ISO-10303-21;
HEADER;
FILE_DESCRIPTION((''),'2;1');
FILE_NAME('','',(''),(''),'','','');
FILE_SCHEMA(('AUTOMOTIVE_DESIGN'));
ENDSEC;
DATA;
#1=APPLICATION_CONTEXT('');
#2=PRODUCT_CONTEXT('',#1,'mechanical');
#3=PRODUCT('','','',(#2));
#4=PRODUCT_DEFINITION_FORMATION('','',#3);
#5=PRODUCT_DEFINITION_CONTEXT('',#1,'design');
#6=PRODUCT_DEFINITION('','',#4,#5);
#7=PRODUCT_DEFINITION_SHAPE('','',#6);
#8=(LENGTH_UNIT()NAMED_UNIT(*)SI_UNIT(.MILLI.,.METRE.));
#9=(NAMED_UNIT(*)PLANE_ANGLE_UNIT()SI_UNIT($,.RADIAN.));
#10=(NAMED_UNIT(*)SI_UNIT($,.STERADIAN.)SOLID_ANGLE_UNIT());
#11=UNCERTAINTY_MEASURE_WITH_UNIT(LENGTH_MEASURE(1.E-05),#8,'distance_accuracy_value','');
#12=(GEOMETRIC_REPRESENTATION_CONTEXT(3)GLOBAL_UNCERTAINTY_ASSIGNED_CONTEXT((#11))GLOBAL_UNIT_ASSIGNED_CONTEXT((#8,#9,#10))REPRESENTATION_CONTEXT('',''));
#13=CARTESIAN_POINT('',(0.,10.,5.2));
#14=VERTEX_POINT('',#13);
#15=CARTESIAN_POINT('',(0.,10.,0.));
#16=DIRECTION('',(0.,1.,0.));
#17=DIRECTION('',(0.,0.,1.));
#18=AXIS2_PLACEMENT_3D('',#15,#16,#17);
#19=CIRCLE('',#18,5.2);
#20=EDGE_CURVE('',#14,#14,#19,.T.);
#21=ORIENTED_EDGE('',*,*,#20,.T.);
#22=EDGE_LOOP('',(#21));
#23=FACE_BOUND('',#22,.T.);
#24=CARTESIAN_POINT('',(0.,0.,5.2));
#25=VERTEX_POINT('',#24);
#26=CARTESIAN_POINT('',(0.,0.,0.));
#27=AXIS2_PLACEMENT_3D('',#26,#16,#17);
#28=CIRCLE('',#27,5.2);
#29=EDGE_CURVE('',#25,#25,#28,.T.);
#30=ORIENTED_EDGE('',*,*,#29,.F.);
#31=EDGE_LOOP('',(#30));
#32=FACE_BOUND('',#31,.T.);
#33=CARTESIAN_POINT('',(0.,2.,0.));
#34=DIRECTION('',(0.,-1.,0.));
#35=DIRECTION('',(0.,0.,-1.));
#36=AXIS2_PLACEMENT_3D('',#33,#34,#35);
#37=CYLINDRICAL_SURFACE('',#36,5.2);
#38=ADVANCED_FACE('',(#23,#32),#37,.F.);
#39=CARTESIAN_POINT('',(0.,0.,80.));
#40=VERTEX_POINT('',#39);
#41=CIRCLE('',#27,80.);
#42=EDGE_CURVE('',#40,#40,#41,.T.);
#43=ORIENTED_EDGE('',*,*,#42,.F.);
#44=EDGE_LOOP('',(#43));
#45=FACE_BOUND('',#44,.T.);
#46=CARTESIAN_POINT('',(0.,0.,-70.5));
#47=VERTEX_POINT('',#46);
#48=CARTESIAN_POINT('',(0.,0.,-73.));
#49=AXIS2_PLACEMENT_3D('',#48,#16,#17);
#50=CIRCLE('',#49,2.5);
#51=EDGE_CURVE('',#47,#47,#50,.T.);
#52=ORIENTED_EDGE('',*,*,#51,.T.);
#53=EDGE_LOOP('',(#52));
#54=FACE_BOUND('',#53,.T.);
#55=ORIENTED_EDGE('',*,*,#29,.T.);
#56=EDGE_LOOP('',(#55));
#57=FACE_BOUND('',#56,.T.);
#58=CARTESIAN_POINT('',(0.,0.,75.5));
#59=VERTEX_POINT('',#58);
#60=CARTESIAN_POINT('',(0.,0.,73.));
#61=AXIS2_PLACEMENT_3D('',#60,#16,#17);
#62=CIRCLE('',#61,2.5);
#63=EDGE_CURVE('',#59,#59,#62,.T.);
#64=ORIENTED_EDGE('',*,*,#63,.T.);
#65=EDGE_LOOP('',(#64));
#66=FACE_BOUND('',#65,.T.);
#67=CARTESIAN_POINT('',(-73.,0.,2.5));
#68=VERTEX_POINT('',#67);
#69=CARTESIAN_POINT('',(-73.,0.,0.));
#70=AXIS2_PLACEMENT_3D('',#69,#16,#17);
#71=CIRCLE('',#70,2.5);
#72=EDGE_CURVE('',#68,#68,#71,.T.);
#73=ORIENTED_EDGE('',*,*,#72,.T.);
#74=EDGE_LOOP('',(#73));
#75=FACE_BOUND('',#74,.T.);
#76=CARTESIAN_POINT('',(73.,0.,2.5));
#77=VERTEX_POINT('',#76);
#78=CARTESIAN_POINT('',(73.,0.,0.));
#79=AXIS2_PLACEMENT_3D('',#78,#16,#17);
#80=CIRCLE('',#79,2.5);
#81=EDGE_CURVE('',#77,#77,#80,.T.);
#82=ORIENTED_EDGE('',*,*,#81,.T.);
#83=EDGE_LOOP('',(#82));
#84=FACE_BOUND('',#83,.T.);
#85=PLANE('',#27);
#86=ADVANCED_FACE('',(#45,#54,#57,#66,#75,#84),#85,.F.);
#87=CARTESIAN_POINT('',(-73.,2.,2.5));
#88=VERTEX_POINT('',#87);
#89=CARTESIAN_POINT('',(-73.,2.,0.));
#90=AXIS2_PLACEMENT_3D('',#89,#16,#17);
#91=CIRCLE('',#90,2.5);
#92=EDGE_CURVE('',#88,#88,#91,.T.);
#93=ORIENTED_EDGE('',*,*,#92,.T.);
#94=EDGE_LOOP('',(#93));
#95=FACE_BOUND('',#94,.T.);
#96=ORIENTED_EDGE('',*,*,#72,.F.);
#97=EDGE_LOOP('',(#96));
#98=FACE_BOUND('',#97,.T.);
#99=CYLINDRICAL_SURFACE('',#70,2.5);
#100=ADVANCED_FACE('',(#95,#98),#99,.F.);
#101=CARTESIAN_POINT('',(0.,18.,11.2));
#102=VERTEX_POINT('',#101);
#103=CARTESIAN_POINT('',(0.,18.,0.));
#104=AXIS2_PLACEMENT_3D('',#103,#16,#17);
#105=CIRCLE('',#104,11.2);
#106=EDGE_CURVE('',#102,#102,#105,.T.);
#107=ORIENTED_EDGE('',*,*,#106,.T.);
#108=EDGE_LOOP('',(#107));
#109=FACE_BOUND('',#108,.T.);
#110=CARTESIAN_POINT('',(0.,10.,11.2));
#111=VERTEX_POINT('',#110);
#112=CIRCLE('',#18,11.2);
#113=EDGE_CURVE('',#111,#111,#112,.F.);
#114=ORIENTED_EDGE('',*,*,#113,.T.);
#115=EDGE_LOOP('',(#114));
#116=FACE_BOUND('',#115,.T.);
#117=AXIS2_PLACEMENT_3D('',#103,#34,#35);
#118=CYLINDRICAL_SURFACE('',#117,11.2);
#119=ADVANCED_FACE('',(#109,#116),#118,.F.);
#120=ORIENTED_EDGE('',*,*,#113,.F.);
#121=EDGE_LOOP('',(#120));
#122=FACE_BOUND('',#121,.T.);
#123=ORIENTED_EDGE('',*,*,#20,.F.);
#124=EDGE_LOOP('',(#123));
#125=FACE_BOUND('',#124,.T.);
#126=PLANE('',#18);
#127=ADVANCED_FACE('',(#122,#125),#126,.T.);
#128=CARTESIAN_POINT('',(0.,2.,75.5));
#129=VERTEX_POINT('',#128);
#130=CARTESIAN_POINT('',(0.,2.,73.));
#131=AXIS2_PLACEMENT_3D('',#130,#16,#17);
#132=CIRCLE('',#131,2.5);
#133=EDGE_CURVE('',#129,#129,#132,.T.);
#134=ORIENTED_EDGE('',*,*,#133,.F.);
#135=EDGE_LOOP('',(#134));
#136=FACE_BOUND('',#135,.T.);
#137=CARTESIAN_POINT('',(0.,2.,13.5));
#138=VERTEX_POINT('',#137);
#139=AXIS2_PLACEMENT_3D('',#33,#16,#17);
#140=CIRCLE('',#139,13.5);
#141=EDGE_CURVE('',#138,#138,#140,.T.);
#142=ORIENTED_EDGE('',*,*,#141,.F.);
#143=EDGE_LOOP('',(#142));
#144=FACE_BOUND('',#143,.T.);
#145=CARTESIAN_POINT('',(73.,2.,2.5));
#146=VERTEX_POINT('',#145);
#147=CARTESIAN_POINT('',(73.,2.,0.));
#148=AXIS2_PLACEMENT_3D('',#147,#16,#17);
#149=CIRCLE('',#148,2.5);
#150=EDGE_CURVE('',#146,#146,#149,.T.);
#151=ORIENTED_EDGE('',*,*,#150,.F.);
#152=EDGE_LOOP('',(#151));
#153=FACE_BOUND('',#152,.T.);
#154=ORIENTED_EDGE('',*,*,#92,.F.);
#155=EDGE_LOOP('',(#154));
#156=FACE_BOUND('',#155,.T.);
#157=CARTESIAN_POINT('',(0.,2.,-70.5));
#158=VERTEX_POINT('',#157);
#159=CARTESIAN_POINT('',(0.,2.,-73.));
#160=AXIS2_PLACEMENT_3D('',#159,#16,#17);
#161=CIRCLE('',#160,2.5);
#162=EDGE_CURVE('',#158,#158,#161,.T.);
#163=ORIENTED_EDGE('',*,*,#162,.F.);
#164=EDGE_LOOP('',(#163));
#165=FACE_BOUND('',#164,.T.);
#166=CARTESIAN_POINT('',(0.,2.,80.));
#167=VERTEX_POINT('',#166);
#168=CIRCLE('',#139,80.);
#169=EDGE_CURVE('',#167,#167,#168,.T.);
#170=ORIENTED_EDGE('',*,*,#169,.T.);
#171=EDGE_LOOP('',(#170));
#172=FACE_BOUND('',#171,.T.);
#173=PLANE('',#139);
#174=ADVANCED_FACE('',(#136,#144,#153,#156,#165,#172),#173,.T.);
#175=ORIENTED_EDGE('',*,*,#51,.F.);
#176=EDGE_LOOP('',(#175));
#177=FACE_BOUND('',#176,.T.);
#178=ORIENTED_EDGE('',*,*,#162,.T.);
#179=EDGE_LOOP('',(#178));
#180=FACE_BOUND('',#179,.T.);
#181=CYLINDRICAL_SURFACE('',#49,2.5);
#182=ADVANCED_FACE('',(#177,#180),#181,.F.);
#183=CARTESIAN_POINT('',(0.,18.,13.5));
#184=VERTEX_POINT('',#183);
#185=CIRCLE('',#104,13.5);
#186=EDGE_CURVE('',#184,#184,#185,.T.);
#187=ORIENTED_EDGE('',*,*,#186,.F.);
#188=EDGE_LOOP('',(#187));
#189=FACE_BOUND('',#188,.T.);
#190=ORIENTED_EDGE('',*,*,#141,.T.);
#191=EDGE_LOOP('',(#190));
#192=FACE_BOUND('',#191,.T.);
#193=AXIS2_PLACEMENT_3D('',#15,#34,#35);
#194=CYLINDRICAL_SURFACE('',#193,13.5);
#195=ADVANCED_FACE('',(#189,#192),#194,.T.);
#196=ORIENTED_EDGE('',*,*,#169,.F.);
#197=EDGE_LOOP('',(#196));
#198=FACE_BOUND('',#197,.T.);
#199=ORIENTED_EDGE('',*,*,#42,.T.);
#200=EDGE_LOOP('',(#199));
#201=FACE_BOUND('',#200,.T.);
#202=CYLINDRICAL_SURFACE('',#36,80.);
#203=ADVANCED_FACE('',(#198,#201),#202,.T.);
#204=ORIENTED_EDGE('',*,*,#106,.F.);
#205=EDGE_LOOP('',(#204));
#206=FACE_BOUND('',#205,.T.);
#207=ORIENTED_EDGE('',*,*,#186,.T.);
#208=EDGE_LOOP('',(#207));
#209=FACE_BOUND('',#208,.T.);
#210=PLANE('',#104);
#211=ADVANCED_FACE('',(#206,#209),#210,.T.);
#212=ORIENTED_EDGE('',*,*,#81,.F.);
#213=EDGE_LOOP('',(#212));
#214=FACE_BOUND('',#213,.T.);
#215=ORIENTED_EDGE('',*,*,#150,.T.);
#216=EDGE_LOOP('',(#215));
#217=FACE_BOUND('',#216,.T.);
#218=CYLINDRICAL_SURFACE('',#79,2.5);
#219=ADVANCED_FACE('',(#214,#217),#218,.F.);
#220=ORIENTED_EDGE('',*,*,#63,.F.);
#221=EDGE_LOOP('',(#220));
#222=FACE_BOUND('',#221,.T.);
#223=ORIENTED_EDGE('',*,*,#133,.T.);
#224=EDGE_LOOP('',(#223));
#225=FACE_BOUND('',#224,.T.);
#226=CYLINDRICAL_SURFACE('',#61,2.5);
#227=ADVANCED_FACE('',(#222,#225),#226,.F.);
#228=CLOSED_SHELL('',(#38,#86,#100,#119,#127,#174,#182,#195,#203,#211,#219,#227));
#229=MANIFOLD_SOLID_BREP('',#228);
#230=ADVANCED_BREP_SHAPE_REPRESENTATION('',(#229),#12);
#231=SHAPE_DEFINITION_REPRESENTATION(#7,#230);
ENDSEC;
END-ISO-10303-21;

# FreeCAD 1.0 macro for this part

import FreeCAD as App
import Part
import Sketcher

doc = App.newDocument("Part")
params = doc.addObject("Spreadsheet::Sheet", "Params")
for row, (alias, value) in enumerate([
    ("sketch1_diameter", "160 mm"),
    ("sketch1_diameter2", "10.4 mm"),
    ("pad1_length", "2 mm"),
    ("sketch2_diameter", "5 mm"),
    ("sketch3_diameter", "27 mm"),
    ("sketch3_diameter2", "10.4 mm"),
    ("pad2_length", "8 mm"),
    ("sketch4_diameter", "27 mm"),
    ("sketch4_diameter2", "22.4 mm"),
    ("pad3_length", "8 mm"),
], start=1):
    params.set(f"A{row}", alias)
    params.set(f"B{row}", "=" + value)
    params.setAlias(f"B{row}", alias)

body = doc.addObject("PartDesign::Body", "Body")

# Sketch on XZ plane
sketch1 = body.newObject("Sketcher::SketchObject", "Sketch")
sketch1.AttachmentSupport = (doc.getObject("XZ_Plane"), [""])
sketch1.MapMode = "FlatFace"
sketch1.addGeometry([
    Part.Circle(App.Vector(0, 0, 0), App.Vector(0, 0, 1), 80),
    Part.Circle(App.Vector(0, 0, 0), App.Vector(0, 0, 1), 5.2),
], False)
sketch1.addConstraint([
    Sketcher.Constraint("Coincident", 0, 3, -1, 1),
    Sketcher.Constraint("Coincident", 1, 3, -1, 1),
    Sketcher.Constraint("Diameter", 0, 160.0),
    Sketcher.Constraint("Diameter", 1, 10.4),
])
sketch1.setExpression("Constraints[2]", "Params.sketch1_diameter")
sketch1.setExpression("Constraints[3]", "Params.sketch1_diameter2")
pad1 = body.newObject("PartDesign::Pad", "Pad")
pad1.Profile = sketch1
pad1.setExpression("Length", "Params.pad1_length")
pad1.Reversed = True

# Sketch on XZ plane
sketch2 = body.newObject("Sketcher::SketchObject", "Sketch001")
sketch2.AttachmentSupport = (doc.getObject("XZ_Plane"), [""])
sketch2.MapMode = "FlatFace"
sketch2.AttachmentOffset = App.Placement(App.Vector(0, 0, -2), App.Rotation())
sketch2.addGeometry([
    Part.Circle(App.Vector(0, -73, 0), App.Vector(0, 0, 1), 2.5),
    Part.Circle(App.Vector(73, 0, 0), App.Vector(0, 0, 1), 2.5),
    Part.Circle(App.Vector(0, 73, 0), App.Vector(0, 0, 1), 2.5),
    Part.Circle(App.Vector(-73, 0, 0), App.Vector(0, 0, 1), 2.5),
], False)
sketch2.addConstraint([
    Sketcher.Constraint("Equal", 0, 1),
    Sketcher.Constraint("Equal", 1, 2),
    Sketcher.Constraint("Equal", 2, 3),
    Sketcher.Constraint("Symmetric", 0, 3, 2, 3, -1, 1),
    Sketcher.Constraint("Symmetric", 1, 3, 3, 3, -1, 1),
    Sketcher.Constraint("PointOnObject", 0, 3, -2),
    Sketcher.Constraint("PointOnObject", 1, 3, -1),
    Sketcher.Constraint("Diameter", 0, 5.0),
    Sketcher.Constraint("DistanceY", 0, 3, -1, 1, 73.0),
    Sketcher.Constraint("DistanceX", -1, 1, 1, 3, 73.0),
])
sketch2.setExpression("Constraints[7]", "Params.sketch2_diameter")
pocket1 = body.newObject("PartDesign::Pocket", "Pocket")
pocket1.Profile = sketch2
pocket1.Type = "ThroughAll"
pocket1.Reversed = True

# Sketch on XZ plane
sketch3 = body.newObject("Sketcher::SketchObject", "Sketch002")
sketch3.AttachmentSupport = (doc.getObject("XZ_Plane"), [""])
sketch3.MapMode = "FlatFace"
sketch3.AttachmentOffset = App.Placement(App.Vector(0, 0, -2), App.Rotation())
sketch3.addGeometry([
    Part.Circle(App.Vector(0, 0, 0), App.Vector(0, 0, 1), 13.5),
    Part.Circle(App.Vector(0, 0, 0), App.Vector(0, 0, 1), 5.2),
], False)
sketch3.addConstraint([
    Sketcher.Constraint("Coincident", 0, 3, -1, 1),
    Sketcher.Constraint("Coincident", 1, 3, -1, 1),
    Sketcher.Constraint("Diameter", 0, 27.0),
    Sketcher.Constraint("Diameter", 1, 10.4),
])
sketch3.setExpression("Constraints[2]", "Params.sketch3_diameter")
sketch3.setExpression("Constraints[3]", "Params.sketch3_diameter2")
pad2 = body.newObject("PartDesign::Pad", "Pad001")
pad2.Profile = sketch3
pad2.setExpression("Length", "Params.pad2_length")
pad2.Reversed = True

# Sketch on XZ plane
sketch4 = body.newObject("Sketcher::SketchObject", "Sketch003")
sketch4.AttachmentSupport = (doc.getObject("XZ_Plane"), [""])
sketch4.MapMode = "FlatFace"
sketch4.AttachmentOffset = App.Placement(App.Vector(0, 0, -10), App.Rotation())
sketch4.addGeometry([
    Part.Circle(App.Vector(0, 0, 0), App.Vector(0, 0, 1), 13.5),
    Part.Circle(App.Vector(0, 0, 0), App.Vector(0, 0, 1), 11.2),
], False)
sketch4.addConstraint([
    Sketcher.Constraint("Coincident", 0, 3, -1, 1),
    Sketcher.Constraint("Coincident", 1, 3, -1, 1),
    Sketcher.Constraint("Diameter", 0, 27.0),
    Sketcher.Constraint("Diameter", 1, 22.4),
])
sketch4.setExpression("Constraints[2]", "Params.sketch4_diameter")
sketch4.setExpression("Constraints[3]", "Params.sketch4_diameter2")
pad3 = body.newObject("PartDesign::Pad", "Pad002")
pad3.Profile = sketch4
pad3.setExpression("Length", "Params.pad3_length")
pad3.Reversed = True

doc.recompute()
